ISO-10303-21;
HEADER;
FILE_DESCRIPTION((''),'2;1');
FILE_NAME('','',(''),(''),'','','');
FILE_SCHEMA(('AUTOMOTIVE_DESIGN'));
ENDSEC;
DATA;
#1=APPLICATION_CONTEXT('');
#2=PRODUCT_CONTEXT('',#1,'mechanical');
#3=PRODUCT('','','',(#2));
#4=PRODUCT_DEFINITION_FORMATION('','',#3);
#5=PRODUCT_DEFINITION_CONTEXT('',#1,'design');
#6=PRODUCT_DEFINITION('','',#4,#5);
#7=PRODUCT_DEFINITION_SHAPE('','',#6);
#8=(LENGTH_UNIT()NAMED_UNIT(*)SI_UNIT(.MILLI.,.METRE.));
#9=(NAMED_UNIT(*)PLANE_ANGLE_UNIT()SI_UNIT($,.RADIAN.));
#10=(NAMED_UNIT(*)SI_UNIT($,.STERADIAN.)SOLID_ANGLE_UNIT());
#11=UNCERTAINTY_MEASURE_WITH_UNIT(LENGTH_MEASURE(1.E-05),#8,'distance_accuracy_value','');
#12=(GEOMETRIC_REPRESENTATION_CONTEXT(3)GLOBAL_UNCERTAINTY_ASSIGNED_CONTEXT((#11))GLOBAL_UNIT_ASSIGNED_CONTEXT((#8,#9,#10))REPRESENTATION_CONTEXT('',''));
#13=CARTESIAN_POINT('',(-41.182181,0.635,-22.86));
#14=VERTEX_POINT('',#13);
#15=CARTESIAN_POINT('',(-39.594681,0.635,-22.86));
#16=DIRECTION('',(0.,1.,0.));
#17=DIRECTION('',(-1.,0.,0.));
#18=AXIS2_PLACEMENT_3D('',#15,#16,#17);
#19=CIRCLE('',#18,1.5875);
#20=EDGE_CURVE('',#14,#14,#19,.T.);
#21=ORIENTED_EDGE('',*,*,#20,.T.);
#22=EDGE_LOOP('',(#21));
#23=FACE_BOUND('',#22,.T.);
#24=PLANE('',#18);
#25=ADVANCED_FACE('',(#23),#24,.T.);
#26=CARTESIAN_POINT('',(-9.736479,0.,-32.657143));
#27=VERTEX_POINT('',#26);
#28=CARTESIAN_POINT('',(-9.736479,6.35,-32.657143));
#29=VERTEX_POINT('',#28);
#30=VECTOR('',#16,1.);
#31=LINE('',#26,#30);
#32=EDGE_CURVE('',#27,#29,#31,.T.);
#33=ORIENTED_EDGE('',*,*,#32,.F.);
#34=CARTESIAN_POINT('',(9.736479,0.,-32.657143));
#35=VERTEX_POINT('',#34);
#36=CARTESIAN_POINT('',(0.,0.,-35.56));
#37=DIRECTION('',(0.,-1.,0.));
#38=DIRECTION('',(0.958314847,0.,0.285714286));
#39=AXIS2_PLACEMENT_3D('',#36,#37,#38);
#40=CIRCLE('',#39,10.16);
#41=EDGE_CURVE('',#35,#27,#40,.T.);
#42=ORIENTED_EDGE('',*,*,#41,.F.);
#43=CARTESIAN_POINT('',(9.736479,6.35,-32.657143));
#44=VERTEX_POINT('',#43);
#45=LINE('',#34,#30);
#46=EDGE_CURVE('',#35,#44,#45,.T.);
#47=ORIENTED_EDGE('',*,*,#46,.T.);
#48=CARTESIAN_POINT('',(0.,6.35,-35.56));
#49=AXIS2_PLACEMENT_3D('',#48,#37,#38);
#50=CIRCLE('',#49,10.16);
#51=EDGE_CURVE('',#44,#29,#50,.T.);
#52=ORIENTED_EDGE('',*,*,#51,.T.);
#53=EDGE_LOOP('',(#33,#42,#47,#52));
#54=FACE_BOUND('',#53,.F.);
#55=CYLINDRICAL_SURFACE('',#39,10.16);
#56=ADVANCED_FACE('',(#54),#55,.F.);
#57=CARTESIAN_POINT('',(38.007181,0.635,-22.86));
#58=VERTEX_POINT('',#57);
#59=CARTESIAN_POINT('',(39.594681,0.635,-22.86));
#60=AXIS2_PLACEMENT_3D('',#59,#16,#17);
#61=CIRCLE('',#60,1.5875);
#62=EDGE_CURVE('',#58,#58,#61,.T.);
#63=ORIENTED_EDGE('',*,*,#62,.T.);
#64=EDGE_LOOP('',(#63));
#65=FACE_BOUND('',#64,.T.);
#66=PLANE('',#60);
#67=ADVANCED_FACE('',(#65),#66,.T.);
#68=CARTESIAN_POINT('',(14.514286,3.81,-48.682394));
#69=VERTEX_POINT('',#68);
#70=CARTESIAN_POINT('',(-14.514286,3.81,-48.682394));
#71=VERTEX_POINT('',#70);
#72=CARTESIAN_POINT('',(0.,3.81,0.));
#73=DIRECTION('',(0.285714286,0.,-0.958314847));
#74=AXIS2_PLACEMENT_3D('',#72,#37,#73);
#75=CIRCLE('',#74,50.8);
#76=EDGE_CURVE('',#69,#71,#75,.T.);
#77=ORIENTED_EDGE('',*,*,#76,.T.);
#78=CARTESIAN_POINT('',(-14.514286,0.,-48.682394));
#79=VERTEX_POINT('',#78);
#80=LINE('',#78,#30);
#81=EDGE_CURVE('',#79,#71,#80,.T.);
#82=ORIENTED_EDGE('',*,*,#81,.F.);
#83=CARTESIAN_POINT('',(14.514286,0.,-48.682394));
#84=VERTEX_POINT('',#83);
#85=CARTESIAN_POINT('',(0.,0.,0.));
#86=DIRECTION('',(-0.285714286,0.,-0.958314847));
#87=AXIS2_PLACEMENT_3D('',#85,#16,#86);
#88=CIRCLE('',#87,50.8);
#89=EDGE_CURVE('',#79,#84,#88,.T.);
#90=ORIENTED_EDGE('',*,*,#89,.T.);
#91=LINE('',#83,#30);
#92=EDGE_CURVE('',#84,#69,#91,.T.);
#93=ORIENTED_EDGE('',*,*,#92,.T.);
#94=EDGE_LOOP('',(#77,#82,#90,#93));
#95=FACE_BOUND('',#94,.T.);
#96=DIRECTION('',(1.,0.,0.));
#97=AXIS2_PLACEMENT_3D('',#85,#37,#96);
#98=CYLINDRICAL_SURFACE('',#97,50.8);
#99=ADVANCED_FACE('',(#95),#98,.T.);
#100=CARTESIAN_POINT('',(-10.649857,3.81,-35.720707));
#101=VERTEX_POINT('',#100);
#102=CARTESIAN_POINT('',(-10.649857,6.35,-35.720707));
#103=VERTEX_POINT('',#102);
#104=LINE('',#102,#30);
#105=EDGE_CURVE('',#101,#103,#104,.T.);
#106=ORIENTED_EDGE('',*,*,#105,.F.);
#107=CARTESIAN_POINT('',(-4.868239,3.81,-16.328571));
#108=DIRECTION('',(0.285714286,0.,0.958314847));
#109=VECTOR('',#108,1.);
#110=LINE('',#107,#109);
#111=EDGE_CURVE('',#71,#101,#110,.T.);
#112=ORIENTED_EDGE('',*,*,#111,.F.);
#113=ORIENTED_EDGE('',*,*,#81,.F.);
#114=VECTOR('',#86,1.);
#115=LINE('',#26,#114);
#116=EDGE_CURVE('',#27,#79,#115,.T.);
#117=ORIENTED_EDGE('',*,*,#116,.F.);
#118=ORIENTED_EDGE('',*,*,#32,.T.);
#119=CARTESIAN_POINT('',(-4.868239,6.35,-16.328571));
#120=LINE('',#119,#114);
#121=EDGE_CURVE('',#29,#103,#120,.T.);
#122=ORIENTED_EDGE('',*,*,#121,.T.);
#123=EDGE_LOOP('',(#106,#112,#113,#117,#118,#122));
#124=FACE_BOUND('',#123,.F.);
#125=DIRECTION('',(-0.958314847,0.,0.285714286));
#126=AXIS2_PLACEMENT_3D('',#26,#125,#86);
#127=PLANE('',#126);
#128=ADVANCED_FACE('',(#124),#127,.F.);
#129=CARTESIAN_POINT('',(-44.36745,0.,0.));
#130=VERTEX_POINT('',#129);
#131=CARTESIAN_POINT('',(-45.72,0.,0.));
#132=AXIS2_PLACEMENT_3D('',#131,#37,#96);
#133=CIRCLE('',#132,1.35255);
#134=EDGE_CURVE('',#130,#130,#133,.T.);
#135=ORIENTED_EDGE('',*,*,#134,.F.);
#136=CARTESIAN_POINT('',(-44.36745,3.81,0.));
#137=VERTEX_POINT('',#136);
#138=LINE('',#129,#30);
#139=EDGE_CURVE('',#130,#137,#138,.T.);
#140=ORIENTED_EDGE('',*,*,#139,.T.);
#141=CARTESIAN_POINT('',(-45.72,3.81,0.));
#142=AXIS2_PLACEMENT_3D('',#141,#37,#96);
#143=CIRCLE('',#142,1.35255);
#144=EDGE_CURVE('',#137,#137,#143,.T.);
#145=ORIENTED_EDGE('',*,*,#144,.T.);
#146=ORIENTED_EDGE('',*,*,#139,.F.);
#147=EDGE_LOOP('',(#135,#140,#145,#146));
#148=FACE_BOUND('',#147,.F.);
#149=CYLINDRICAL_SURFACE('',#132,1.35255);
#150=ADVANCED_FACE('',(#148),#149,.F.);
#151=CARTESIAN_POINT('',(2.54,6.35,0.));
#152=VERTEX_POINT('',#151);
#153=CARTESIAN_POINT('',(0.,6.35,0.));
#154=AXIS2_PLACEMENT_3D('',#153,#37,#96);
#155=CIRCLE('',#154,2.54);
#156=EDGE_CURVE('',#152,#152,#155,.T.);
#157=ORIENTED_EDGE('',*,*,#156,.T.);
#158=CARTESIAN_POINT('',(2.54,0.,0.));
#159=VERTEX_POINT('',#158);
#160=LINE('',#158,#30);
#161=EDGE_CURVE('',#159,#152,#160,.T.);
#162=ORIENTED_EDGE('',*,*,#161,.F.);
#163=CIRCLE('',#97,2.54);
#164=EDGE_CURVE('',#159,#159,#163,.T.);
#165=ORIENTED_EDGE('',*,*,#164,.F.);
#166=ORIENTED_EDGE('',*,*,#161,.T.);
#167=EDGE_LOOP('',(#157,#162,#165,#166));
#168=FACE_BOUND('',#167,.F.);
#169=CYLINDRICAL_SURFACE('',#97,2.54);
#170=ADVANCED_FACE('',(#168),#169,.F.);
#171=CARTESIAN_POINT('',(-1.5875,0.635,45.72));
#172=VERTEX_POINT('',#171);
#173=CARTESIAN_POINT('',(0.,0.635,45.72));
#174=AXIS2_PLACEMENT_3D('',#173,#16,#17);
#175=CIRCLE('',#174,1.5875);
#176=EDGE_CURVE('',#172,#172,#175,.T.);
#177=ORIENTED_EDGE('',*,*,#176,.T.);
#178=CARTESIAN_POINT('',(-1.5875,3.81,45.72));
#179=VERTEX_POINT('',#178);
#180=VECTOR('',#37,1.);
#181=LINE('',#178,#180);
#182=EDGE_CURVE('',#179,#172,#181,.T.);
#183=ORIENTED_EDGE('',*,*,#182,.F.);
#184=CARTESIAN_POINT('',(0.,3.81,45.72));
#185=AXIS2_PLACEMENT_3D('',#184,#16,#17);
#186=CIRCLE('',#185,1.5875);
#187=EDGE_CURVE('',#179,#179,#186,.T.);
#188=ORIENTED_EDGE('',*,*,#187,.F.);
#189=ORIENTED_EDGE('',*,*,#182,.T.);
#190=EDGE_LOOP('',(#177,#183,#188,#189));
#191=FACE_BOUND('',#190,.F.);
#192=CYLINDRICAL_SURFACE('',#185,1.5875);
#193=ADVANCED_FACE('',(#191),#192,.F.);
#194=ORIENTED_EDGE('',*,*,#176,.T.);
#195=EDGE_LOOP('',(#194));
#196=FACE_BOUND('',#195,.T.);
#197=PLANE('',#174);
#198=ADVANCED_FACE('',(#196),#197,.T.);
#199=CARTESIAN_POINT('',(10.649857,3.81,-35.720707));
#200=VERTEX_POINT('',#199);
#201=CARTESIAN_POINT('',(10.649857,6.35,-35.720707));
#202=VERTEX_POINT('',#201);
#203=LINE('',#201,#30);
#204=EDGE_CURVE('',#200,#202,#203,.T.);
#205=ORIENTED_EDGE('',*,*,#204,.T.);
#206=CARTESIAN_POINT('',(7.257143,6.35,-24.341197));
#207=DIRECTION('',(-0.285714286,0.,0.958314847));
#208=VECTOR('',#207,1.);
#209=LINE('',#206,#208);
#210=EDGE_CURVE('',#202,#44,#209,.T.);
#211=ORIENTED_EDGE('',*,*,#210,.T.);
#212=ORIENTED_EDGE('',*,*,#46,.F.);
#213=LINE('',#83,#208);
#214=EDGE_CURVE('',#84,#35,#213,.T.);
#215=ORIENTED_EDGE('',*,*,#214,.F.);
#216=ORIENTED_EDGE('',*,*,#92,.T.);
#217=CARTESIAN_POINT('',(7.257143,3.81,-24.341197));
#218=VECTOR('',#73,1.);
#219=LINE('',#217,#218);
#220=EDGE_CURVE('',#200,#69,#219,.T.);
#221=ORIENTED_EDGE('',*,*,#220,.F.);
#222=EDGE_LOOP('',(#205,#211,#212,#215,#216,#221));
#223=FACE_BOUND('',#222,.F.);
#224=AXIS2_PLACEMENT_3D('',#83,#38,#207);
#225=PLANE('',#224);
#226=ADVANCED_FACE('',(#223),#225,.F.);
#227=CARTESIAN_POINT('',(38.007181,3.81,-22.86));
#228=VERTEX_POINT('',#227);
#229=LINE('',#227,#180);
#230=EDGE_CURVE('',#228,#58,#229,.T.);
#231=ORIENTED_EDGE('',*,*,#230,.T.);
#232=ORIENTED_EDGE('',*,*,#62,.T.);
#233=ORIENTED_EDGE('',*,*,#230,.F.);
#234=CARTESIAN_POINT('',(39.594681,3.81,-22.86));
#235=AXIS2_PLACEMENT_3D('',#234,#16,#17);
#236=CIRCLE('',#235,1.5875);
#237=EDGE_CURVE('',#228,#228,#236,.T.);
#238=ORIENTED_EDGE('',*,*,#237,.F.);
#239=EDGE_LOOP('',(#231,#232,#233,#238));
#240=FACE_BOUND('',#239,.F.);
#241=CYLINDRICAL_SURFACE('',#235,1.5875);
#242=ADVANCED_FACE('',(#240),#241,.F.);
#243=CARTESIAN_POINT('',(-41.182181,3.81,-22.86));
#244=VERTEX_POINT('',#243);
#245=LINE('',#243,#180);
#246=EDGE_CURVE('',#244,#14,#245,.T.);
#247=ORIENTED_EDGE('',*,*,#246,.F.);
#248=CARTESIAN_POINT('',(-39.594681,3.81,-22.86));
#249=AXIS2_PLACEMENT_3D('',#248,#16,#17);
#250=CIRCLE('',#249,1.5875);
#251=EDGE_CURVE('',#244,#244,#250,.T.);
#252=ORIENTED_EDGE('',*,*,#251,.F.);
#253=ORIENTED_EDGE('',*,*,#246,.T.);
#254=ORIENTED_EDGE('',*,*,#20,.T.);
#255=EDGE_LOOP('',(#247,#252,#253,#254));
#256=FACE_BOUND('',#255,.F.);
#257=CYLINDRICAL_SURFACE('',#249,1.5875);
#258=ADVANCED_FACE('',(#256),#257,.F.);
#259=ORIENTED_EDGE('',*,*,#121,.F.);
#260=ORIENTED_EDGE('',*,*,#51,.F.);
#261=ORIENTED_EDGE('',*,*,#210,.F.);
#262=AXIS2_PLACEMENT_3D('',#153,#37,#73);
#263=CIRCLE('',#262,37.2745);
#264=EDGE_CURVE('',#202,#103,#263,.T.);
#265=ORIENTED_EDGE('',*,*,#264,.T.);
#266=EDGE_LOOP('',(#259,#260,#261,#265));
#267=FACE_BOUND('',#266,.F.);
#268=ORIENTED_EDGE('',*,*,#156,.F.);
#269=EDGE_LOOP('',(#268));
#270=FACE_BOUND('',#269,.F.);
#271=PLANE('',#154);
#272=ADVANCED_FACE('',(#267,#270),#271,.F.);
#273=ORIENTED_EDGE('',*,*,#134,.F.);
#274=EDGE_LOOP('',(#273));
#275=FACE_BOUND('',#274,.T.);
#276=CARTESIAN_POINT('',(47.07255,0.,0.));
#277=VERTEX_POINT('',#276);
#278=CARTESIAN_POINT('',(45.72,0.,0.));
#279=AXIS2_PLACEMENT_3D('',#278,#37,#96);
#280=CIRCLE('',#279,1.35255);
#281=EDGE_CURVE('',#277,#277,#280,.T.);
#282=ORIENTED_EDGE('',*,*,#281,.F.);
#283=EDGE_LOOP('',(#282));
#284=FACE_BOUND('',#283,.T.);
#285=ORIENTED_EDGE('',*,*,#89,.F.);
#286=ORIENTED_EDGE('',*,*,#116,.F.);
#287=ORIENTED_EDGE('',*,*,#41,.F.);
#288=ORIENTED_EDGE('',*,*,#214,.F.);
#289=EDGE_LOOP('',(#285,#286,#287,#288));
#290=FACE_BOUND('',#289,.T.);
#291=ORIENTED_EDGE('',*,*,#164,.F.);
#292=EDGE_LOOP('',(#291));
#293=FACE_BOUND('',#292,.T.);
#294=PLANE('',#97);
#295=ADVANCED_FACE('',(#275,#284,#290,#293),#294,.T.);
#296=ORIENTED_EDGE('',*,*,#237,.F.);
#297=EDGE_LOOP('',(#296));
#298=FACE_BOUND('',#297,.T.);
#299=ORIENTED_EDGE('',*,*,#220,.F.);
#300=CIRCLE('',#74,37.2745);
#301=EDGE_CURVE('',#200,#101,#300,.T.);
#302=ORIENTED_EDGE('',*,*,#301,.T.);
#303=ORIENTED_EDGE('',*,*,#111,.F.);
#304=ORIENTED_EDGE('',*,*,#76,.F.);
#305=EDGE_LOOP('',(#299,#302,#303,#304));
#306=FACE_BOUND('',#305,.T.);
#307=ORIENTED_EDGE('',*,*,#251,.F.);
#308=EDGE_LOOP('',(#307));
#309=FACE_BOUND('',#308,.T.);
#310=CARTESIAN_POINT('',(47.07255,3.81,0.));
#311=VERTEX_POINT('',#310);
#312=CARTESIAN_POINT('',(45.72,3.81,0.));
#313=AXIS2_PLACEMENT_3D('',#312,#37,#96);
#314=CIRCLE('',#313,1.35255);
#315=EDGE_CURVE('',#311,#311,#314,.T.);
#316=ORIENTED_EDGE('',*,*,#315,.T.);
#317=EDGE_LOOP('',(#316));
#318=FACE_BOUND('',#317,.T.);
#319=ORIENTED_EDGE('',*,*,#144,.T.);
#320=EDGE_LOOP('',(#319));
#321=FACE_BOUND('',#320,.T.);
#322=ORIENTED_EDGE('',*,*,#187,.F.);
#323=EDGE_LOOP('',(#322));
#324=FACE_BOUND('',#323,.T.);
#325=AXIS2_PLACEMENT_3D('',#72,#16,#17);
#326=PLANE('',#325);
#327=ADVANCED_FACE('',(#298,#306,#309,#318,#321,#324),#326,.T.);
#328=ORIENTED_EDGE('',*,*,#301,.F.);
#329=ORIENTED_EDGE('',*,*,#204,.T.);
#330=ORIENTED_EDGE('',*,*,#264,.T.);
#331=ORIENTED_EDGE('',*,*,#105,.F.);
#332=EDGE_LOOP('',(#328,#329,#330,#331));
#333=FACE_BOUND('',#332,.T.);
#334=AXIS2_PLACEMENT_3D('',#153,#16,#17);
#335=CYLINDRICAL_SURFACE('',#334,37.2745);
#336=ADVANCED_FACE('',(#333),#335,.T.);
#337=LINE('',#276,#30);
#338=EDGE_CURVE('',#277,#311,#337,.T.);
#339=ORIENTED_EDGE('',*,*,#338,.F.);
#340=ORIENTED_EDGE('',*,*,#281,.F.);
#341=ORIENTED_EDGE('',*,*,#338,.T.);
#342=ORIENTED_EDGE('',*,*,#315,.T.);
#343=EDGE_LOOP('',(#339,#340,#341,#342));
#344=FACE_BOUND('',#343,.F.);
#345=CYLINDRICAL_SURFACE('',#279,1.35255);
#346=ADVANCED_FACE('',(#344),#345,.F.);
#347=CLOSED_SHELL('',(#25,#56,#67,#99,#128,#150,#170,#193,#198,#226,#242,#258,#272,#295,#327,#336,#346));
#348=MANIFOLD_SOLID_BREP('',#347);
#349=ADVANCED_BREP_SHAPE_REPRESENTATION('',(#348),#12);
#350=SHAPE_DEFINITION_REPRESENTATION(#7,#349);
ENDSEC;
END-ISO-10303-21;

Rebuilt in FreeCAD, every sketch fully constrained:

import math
import FreeCAD as App
import Part
import Sketcher
Q = App.Units.Quantity

doc = App.newDocument("Part")
body = doc.addObject("PartDesign::Body", "Body")

# Sketch on XZ plane
sketch1 = body.newObject("Sketcher::SketchObject", "Sketch")
sketch1.AttachmentSupport = (doc.getObject("XZ_Plane"), [""])
sketch1.MapMode = "FlatFace"
sketch1.addGeometry(Part.Circle(App.Vector(0, 0, 0), App.Vector(0, 0, 1), 51), False)
sketch1.addConstraint([
    Sketcher.Constraint("Coincident", 0, 3, -1, 1),
    Sketcher.Constraint("Diameter", 0, Q("4 in")),
])
pad1 = body.newObject("PartDesign::Pad", "Pad")
pad1.Profile = sketch1
pad1.Length = Q("0.25 in")
pad1.Reversed = True

# Sketch on XZ plane
sketch2 = body.newObject("Sketcher::SketchObject", "Sketch001")
sketch2.AttachmentSupport = (doc.getObject("XZ_Plane"), [""])
sketch2.MapMode = "FlatFace"
sketch2.AttachmentOffset = App.Placement(App.Vector(0, 0, -0.25 * 25.4), App.Rotation())
sketch2.addGeometry([
    Part.Circle(App.Vector(0, 0, 0), App.Vector(0, 0, 1), 51),
    Part.Circle(App.Vector(0, 0, 0), App.Vector(0, 0, 1), 37),
], False)
sketch2.addConstraint([
    Sketcher.Constraint("Coincident", 0, 3, -1, 1),
    Sketcher.Constraint("Coincident", 1, 3, -1, 1),
    Sketcher.Constraint("Diameter", 0, Q("4 in")),
    Sketcher.Constraint("Diameter", 1, Q("2.935 in")),
])
pocket1 = body.newObject("PartDesign::Pocket", "Pocket")
pocket1.Profile = sketch2
pocket1.Length = Q("0.1 in")
pocket1.Reversed = True

# Sketch on XZ plane
sketch3 = body.newObject("Sketcher::SketchObject", "Sketch002")
sketch3.AttachmentSupport = (doc.getObject("XZ_Plane"), [""])
sketch3.MapMode = "FlatFace"
sketch3.addGeometry([
    Part.Circle(App.Vector(0, 0, 0), App.Vector(0, 0, 1), 2.5),
    Part.Circle(App.Vector(-45.7, 0, 0), App.Vector(0, 0, 1), 1.4),
    Part.Circle(App.Vector(45.7, 0, 0), App.Vector(0, 0, 1), 1.4),
], False)
sketch3.addConstraint([
    Sketcher.Constraint("Coincident", 0, 3, -1, 1),
    Sketcher.Constraint("Equal", 1, 2),
    Sketcher.Constraint("Symmetric", 1, 3, 2, 3, -1, 1),
    Sketcher.Constraint("PointOnObject", 1, 3, -1),
    Sketcher.Constraint("Diameter", 0, Q("0.2 in")),
    Sketcher.Constraint("Diameter", 1, Q("0.1065 in")),
    Sketcher.Constraint("DistanceX", 1, 3, -1, 1, Q("1.8 in")),
])
pocket2 = body.newObject("PartDesign::Pocket", "Pocket001")
pocket2.Profile = sketch3
pocket2.Type = "ThroughAll"

# Sketch on XZ plane
sketch4 = body.newObject("Sketcher::SketchObject", "Sketch003")
sketch4.AttachmentSupport = (doc.getObject("XZ_Plane"), [""])
sketch4.MapMode = "FlatFace"
sketch4.addGeometry([
    Part.ArcOfCircle(Part.Circle(App.Vector(0, -36, 0), App.Vector(0, 0, 1), 10), math.radians(17), math.radians(163)),
    Part.LineSegment(App.Vector(-10, -33, 0), App.Vector(-15, -49, 0)),
    Part.ArcOfCircle(Part.Circle(App.Vector(0, 0, 0), App.Vector(0, 0, 1), 51), math.radians(-107), math.radians(-73)),
    Part.LineSegment(App.Vector(15, -49, 0), App.Vector(10, -33, 0)),
], False)
sketch4.addConstraint([
    Sketcher.Constraint("Tangent", 0, 2, 1, 1),
    Sketcher.Constraint("Coincident", 1, 2, 2, 1),
    Sketcher.Constraint("Coincident", 2, 2, 3, 1),
    Sketcher.Constraint("Tangent", 3, 2, 0, 1),
    Sketcher.Constraint("Coincident", 2, 3, -1, 1),
    Sketcher.Constraint("Symmetric", 0, 2, 3, 2, -2),
    Sketcher.Constraint("Radius", 2, Q("2 in")),
    Sketcher.Constraint("Radius", 0, Q("0.4 in")),
    Sketcher.Constraint("DistanceY", 0, 3, -1, 1, Q("1.4 in")),
    Sketcher.Constraint("DistanceX", 0, 2, -1, 1, Q("9.736479 mm")),
])
pocket3 = body.newObject("PartDesign::Pocket", "Pocket002")
pocket3.Profile = sketch4
pocket3.Type = "ThroughAll"

# Sketch on XZ plane
sketch5 = body.newObject("Sketcher::SketchObject", "Sketch004")
sketch5.AttachmentSupport = (doc.getObject("XZ_Plane"), [""])
sketch5.MapMode = "FlatFace"
sketch5.AttachmentOffset = App.Placement(App.Vector(0, 0, -0.15 * 25.4), App.Rotation())
sketch5.addGeometry([
    Part.Circle(App.Vector(0, 45.7, 0), App.Vector(0, 0, 1), 1.6),
    Part.Circle(App.Vector(-39.6, -22.9, 0), App.Vector(0, 0, 1), 1.6),
    Part.Circle(App.Vector(39.6, -22.9, 0), App.Vector(0, 0, 1), 1.6),
], False)
sketch5.addConstraint([
    Sketcher.Constraint("Equal", 0, 1),
    Sketcher.Constraint("Equal", 1, 2),
    Sketcher.Constraint("Symmetric", 1, 3, 2, 3, -2),
    Sketcher.Constraint("PointOnObject", 0, 3, -2),
    Sketcher.Constraint("Diameter", 0, Q("0.125 in")),
    Sketcher.Constraint("DistanceY", -1, 1, 0, 3, Q("1.8 in")),
    Sketcher.Constraint("DistanceY", 1, 3, -1, 1, Q("0.9 in")),
    Sketcher.Constraint("DistanceX", 1, 3, -1, 1, Q("39.594681 mm")),
])
pocket4 = body.newObject("PartDesign::Pocket", "Pocket003")
pocket4.Profile = sketch5
pocket4.Length = Q("0.125 in")
pocket4.Reversed = True

doc.recompute()
